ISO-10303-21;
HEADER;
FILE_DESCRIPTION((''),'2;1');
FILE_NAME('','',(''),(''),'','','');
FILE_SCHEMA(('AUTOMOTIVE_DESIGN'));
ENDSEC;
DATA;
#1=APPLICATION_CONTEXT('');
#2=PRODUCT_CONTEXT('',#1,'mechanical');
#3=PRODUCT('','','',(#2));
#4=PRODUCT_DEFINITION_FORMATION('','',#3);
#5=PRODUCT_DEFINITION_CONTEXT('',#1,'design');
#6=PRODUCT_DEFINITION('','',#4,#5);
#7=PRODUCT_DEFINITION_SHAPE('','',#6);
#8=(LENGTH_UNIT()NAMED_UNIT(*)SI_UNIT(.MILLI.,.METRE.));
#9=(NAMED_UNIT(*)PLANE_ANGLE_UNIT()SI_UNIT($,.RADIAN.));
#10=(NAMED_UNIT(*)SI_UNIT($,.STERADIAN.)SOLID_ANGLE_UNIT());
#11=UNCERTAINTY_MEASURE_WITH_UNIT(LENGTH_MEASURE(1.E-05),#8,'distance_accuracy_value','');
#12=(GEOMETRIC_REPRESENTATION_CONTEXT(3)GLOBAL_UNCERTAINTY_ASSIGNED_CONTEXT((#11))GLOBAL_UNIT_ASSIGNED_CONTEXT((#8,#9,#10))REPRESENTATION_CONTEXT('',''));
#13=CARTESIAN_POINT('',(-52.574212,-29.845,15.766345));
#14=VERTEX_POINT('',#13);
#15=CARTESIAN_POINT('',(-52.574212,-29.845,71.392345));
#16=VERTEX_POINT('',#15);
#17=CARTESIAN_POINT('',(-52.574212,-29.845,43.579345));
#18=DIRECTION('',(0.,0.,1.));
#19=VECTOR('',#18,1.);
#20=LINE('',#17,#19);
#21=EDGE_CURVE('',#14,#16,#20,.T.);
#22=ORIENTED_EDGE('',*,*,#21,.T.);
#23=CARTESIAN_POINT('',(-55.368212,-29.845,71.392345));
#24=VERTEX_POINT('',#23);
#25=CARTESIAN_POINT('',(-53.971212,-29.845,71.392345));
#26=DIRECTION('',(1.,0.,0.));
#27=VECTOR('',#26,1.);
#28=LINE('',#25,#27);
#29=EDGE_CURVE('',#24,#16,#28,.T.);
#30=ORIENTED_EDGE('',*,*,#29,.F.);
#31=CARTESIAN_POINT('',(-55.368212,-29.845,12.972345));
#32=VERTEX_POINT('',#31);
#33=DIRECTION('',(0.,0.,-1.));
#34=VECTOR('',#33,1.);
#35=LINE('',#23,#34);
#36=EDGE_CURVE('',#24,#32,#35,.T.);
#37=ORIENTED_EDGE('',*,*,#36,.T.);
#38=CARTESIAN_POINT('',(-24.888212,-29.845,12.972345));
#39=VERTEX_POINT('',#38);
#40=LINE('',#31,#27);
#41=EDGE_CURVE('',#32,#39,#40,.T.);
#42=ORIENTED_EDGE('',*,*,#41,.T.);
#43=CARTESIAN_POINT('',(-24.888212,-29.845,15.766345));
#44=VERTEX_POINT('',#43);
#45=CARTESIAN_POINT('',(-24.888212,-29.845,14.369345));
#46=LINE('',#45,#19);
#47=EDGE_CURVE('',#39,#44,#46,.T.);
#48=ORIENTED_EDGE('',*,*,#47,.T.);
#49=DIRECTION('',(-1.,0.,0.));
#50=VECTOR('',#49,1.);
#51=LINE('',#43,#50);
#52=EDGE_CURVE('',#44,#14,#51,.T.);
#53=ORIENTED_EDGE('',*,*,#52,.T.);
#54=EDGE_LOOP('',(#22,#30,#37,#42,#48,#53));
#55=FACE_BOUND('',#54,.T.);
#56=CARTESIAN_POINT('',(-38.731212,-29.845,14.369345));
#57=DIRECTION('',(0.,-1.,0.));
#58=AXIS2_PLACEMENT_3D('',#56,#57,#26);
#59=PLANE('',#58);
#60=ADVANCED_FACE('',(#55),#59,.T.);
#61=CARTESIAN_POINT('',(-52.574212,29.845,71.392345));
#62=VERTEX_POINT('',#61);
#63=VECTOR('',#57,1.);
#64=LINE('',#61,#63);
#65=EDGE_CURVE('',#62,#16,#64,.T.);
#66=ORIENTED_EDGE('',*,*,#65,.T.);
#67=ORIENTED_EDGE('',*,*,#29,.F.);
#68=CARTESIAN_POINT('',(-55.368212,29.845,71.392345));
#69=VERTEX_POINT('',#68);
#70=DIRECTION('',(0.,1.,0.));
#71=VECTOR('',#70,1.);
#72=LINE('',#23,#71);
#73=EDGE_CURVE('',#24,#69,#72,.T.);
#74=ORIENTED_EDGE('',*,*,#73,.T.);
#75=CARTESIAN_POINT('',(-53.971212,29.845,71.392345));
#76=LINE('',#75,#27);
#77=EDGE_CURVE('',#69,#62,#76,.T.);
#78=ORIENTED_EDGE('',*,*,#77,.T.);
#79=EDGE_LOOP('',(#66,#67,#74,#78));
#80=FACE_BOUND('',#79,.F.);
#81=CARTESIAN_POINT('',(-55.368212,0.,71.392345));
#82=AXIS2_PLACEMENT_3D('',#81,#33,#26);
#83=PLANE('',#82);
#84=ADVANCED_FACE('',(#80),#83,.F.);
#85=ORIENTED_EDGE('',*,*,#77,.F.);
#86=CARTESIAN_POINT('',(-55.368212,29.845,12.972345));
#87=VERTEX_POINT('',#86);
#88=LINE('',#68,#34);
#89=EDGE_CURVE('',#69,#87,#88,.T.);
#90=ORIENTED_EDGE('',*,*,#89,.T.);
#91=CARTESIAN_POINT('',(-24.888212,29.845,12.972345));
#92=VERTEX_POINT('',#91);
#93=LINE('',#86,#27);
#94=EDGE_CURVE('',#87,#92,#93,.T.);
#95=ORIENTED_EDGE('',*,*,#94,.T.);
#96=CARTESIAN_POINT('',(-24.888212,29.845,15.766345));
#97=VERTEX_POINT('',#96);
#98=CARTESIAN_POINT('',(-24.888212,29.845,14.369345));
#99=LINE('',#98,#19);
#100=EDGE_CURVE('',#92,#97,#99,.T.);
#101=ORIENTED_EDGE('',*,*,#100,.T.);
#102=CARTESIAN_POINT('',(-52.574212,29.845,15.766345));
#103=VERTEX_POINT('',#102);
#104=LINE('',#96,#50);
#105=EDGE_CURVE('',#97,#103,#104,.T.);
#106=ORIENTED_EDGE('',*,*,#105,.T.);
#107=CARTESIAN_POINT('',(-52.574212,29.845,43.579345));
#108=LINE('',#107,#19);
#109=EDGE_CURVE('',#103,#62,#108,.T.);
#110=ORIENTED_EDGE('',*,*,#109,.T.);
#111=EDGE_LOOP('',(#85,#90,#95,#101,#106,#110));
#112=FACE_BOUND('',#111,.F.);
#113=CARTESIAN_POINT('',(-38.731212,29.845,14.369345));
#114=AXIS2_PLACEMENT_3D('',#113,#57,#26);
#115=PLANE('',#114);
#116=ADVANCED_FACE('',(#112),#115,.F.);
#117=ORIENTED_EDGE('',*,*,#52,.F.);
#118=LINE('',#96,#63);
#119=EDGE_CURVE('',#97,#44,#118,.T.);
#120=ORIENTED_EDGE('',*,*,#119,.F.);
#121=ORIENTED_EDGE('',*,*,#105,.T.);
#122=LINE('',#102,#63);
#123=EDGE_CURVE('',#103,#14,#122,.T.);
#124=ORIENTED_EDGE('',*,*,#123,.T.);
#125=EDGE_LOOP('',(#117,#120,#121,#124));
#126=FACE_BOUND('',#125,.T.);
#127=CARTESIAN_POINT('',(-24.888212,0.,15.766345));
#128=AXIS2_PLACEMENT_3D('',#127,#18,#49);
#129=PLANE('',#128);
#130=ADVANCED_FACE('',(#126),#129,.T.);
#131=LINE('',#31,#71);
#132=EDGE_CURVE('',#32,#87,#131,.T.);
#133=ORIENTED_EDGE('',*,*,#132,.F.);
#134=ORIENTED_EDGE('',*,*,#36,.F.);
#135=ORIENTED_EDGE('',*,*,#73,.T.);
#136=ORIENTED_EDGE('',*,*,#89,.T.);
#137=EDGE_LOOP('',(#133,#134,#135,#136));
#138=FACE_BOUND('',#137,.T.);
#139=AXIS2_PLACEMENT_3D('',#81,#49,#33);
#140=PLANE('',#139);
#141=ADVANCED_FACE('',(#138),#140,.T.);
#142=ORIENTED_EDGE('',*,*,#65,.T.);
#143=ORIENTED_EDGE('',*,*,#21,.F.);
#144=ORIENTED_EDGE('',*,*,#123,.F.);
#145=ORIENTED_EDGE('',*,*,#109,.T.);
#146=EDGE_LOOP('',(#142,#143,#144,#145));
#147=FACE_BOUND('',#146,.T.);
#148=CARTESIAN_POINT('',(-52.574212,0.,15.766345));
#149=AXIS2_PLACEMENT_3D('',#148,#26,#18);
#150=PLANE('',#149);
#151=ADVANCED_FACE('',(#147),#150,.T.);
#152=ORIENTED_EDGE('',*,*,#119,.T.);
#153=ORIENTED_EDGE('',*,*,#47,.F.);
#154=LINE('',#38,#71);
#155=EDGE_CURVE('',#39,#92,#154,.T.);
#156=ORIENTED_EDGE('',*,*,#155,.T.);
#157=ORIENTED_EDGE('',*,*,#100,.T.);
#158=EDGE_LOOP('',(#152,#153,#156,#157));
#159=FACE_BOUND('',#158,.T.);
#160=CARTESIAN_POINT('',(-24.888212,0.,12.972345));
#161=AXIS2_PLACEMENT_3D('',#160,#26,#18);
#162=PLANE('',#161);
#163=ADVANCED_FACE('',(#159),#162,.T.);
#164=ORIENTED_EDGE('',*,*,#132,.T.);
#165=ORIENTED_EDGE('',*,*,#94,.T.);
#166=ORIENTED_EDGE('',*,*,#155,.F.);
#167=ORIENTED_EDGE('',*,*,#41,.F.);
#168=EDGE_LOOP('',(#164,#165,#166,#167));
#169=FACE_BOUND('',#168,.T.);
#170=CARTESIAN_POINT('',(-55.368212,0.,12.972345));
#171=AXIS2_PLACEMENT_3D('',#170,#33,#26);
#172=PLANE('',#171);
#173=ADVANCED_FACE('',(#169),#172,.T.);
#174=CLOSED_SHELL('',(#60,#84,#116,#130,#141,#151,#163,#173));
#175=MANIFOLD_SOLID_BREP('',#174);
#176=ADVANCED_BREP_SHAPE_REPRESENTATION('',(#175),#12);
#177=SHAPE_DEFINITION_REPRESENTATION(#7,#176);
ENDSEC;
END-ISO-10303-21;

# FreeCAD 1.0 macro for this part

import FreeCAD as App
import Part
import Sketcher
from FreeCAD import Vector
Q = App.Units.Quantity


def add_polygon(sketch, points):
    """Adds a closed chain of lines whose ends are joined by coincident constraints."""
    first, n = sketch.GeometryCount, len(points)
    for a, b in zip(points, points[1:] + points[:1]):
        sketch.addGeometry(Part.LineSegment(App.Vector(*a, 0), App.Vector(*b, 0)), False)
    for i in range(n):
        sketch.addConstraint(Sketcher.Constraint("Coincident", first + i, 2, first + (i + 1) % n, 1))

doc = App.newDocument("Part")
body = doc.addObject("PartDesign::Body", "Body")

# Sketch on XZ plane
sketch1 = body.newObject("Sketcher::SketchObject", "Sketch")
sketch1.AttachmentSupport = (doc.getObject("XZ_Plane"), [""])
sketch1.MapMode = "FlatFace"
add_polygon(sketch1, [(-24.888212, 12.972345), (-24.888212, 15.766345), (-52.574212, 15.766345), (-52.574212, 71.392345), (-55.368212, 71.392345), (-55.368212, 12.972345)])  # lines 0-5
sketch1.addConstraint([
    Sketcher.Constraint("Vertical", 0),
    Sketcher.Constraint("Horizontal", 1),
    Sketcher.Constraint("Vertical", 2),
    Sketcher.Constraint("Horizontal", 3),
    Sketcher.Constraint("Vertical", 4),
    Sketcher.Constraint("Horizontal", 5),
    Sketcher.Constraint("Equal", 3, 0),
    Sketcher.Constraint("DistanceX", 5, 1, 5, 2, Q("1.2 in")),
    Sketcher.Constraint("DistanceY", 4, 2, 4, 1, Q("2.3 in")),
    Sketcher.Constraint("DistanceX", 1, 2, 1, 1, Q("1.09 in")),
    Sketcher.Constraint("DistanceX", 0, 2, -1, 1, Q("24.888212 mm")),
    Sketcher.Constraint("DistanceY", -1, 1, 0, 2, Q("15.766345 mm")),
])
pad1 = body.newObject("PartDesign::Pad", "Pad")
pad1.Profile = sketch1
pad1.Length = Q("2.35 in")
pad1.Midplane = True

doc.recompute()
